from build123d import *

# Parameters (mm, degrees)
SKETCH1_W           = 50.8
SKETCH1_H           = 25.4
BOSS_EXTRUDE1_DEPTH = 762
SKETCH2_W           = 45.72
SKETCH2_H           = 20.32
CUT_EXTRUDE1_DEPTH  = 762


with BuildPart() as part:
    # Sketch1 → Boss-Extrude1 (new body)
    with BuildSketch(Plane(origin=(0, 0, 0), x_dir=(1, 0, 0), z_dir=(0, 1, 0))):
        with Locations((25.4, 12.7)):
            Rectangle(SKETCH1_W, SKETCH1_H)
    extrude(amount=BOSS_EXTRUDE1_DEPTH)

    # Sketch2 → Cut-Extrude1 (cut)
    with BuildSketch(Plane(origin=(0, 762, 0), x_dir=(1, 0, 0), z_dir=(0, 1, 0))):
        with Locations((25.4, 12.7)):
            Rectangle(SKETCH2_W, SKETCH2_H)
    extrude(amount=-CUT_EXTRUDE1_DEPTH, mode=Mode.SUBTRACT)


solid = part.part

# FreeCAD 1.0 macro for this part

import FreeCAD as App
import Part
import Sketcher
Q = App.Units.Quantity

doc = App.newDocument("Part")
body = doc.addObject("PartDesign::Body", "Body")

sketch1 = body.newObject("Sketcher::SketchObject", "Sketch")
sketch1.AttachmentSupport = (doc.getObject("XZ_Plane"), [""])
sketch1.MapMode = "FlatFace"
sketch1.addGeometry(Part.LineSegment(App.Vector(0, -25, 0), App.Vector(0, 0, 0)), False)
sketch1.addGeometry(Part.LineSegment(App.Vector(0, 0, 0), App.Vector(51, 0, 0)), False)
sketch1.addGeometry(Part.LineSegment(App.Vector(51, 0, 0), App.Vector(51, -25, 0)), False)
sketch1.addGeometry(Part.LineSegment(App.Vector(51, -25, 0), App.Vector(0, -25, 0)), False)
sketch1.addConstraint(Sketcher.Constraint("Coincident", 0, 2, 1, 1))
sketch1.addConstraint(Sketcher.Constraint("Coincident", 1, 2, 2, 1))
sketch1.addConstraint(Sketcher.Constraint("Coincident", 2, 2, 3, 1))
sketch1.addConstraint(Sketcher.Constraint("Coincident", 3, 2, 0, 1))
sketch1.addConstraint(Sketcher.Constraint("Vertical", 0))
sketch1.addConstraint(Sketcher.Constraint("Horizontal", 1))
sketch1.addConstraint(Sketcher.Constraint("Vertical", 2))
sketch1.addConstraint(Sketcher.Constraint("Horizontal", 3))
sketch1.addConstraint(Sketcher.Constraint("Coincident", 0, 2, -1, 1))
sketch1.addConstraint(Sketcher.Constraint("DistanceX", 1, 1, 1, 2, Q("2 in")))
sketch1.addConstraint(Sketcher.Constraint("DistanceY", 0, 1, 0, 2, Q("1 in")))
pad1 = body.newObject("PartDesign::Pad", "Pad")
pad1.Profile = sketch1
pad1.Length = Q("30 in")
pad1.Reversed = True

sketch2 = body.newObject("Sketcher::SketchObject", "Sketch001")
sketch2.AttachmentSupport = (doc.getObject("XZ_Plane"), [""])
sketch2.MapMode = "FlatFace"
sketch2.AttachmentOffset = App.Placement(App.Vector(0, 0, -30 * 25.4), App.Rotation())
sketch2.addGeometry(Part.LineSegment(App.Vector(3, -23, 0), App.Vector(3, -3, 0)), False)
sketch2.addGeometry(Part.LineSegment(App.Vector(3, -3, 0), App.Vector(48, -3, 0)), False)
sketch2.addGeometry(Part.LineSegment(App.Vector(48, -3, 0), App.Vector(48, -23, 0)), False)
sketch2.addGeometry(Part.LineSegment(App.Vector(48, -23, 0), App.Vector(3, -23, 0)), False)
sketch2.addConstraint(Sketcher.Constraint("Coincident", 0, 2, 1, 1))
sketch2.addConstraint(Sketcher.Constraint("Coincident", 1, 2, 2, 1))
sketch2.addConstraint(Sketcher.Constraint("Coincident", 2, 2, 3, 1))
sketch2.addConstraint(Sketcher.Constraint("Coincident", 3, 2, 0, 1))
sketch2.addConstraint(Sketcher.Constraint("Vertical", 0))
sketch2.addConstraint(Sketcher.Constraint("Horizontal", 1))
sketch2.addConstraint(Sketcher.Constraint("Vertical", 2))
sketch2.addConstraint(Sketcher.Constraint("Horizontal", 3))
sketch2.addConstraint(Sketcher.Constraint("DistanceX", 1, 1, 1, 2, Q("1.8 in")))
sketch2.addConstraint(Sketcher.Constraint("DistanceY", 0, 1, 0, 2, Q("0.8 in")))
sketch2.addConstraint(Sketcher.Constraint("DistanceX", -1, 1, 0, 2, Q("0.1 in")))
sketch2.addConstraint(Sketcher.Constraint("DistanceY", 0, 2, -1, 1, Q("0.1 in")))
pocket1 = body.newObject("PartDesign::Pocket", "Pocket")
pocket1.Profile = sketch2
pocket1.Length = Q("30 in")
pocket1.Reversed = True

doc.recompute()
